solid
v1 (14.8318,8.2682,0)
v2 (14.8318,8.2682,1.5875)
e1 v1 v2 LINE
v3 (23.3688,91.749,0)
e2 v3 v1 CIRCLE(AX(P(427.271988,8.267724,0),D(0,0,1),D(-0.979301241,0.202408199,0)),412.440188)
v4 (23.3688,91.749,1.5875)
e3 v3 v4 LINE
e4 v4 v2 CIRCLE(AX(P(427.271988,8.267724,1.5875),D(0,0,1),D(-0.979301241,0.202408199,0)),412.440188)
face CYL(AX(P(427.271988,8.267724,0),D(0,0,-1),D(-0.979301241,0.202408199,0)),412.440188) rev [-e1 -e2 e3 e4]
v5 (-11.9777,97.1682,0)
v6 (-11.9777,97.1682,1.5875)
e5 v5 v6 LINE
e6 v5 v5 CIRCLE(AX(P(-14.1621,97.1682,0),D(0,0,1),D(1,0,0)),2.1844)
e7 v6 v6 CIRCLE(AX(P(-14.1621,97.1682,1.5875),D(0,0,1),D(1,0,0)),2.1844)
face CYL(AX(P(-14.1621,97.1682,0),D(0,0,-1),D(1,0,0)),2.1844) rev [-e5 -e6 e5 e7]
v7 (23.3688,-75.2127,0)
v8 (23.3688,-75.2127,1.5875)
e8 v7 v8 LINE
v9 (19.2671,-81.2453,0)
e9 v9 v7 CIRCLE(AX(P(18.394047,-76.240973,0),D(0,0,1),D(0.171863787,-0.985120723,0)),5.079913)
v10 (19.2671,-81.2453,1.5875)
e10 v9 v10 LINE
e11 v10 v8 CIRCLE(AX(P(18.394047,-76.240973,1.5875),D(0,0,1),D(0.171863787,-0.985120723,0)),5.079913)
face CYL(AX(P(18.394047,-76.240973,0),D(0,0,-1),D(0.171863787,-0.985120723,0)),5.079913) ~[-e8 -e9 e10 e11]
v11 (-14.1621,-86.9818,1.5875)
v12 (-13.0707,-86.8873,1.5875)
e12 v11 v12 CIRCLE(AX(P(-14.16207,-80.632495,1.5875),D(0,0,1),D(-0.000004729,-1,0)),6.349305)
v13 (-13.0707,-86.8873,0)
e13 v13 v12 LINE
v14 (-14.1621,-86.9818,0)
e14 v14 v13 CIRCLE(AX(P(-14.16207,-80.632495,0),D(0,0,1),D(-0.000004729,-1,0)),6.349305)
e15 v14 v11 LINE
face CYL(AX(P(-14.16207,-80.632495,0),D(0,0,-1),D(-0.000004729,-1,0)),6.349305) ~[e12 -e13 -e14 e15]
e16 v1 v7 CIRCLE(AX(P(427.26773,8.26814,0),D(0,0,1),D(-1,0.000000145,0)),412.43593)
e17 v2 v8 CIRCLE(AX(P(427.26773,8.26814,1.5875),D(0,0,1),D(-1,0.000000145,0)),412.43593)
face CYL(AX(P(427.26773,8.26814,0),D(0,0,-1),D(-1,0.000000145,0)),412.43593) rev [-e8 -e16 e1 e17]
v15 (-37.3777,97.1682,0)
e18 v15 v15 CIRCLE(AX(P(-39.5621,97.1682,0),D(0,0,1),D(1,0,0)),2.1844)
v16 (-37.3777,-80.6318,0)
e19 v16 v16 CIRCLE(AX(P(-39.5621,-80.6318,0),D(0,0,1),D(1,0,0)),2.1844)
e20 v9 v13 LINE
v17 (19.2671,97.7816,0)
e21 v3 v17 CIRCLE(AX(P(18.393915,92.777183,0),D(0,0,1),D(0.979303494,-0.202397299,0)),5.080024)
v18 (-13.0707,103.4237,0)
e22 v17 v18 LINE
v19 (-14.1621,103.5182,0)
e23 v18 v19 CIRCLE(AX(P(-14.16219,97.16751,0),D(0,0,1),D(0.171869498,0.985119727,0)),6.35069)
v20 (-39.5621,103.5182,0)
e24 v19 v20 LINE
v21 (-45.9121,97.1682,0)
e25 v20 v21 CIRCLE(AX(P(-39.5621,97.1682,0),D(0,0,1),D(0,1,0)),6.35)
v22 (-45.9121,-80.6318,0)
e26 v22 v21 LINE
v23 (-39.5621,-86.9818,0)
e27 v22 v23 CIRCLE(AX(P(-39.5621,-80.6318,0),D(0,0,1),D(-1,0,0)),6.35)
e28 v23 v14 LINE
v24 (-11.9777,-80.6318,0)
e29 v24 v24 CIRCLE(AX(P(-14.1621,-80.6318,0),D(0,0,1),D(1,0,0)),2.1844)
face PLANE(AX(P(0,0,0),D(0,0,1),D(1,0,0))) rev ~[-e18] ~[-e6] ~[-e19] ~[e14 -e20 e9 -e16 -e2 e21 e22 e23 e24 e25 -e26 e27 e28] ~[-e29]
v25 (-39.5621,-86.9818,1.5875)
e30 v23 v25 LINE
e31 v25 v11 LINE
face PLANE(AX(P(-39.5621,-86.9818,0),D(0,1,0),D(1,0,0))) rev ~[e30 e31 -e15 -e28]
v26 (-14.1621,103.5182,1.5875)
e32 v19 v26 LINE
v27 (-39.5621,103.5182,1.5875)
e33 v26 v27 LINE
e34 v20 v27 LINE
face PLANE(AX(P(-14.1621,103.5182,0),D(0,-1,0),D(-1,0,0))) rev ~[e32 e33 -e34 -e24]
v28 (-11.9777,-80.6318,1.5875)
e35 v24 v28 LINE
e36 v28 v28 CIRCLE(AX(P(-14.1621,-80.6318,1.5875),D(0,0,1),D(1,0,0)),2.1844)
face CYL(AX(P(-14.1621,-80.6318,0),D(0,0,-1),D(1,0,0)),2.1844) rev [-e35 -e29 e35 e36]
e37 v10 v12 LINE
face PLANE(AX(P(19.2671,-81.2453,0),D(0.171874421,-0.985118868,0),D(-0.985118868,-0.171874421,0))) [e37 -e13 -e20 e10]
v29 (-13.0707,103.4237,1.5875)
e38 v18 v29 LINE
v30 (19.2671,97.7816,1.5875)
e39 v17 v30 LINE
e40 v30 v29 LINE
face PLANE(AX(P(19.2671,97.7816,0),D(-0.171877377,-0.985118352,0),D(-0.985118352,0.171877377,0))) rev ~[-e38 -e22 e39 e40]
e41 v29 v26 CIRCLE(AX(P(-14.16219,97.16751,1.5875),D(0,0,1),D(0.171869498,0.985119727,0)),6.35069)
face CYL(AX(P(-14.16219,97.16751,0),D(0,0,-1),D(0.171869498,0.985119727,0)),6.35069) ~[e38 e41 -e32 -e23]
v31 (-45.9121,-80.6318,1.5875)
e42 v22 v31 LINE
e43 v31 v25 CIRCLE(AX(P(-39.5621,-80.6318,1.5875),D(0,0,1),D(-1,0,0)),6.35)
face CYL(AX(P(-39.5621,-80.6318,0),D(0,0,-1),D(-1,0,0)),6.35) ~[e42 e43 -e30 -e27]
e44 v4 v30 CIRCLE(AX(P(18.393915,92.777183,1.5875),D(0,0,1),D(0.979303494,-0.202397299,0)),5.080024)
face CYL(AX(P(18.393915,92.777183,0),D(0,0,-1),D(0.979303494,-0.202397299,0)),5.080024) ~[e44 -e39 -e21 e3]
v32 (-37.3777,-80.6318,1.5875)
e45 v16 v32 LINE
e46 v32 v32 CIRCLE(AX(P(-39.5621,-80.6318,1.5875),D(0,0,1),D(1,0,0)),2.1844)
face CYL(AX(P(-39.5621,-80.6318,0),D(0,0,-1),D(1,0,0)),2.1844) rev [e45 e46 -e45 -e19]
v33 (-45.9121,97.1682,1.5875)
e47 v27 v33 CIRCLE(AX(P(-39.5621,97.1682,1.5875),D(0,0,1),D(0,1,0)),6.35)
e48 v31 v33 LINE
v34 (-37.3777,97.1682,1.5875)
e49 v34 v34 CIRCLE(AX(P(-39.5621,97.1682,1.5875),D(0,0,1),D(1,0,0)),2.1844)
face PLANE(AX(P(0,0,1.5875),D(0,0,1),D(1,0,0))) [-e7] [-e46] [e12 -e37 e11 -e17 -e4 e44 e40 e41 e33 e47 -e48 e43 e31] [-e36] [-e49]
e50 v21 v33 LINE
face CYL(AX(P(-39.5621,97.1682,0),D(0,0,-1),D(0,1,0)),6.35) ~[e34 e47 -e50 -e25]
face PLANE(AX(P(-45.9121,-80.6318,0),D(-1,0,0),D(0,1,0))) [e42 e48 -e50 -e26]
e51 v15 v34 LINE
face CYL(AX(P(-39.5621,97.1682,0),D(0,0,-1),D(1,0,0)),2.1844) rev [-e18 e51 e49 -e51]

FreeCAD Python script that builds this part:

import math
import FreeCAD as App
import Part
import Sketcher
from FreeCAD import Vector
Q = App.Units.Quantity

doc = App.newDocument("Part")
body = doc.addObject("PartDesign::Body", "Body")

# Sketch on XY plane
sketch1 = body.newObject("Sketcher::SketchObject", "Sketch")
sketch1.AttachmentSupport = (doc.getObject("XY_Plane"), [""])
sketch1.MapMode = "FlatFace"
sketch1.addGeometry(Part.LineSegment(Vector(-13.0707, -86.8873, 0), Vector(19.2671, -81.2453, 0)), False)
sketch1.addGeometry(Part.ArcOfCircle(Part.Circle(Vector(18.394, -76.2409, 0), Vector(0, 0, 1), 5.079992), math.radians(-80.103418), math.radians(11.677563)), False)
sketch1.addGeometry(Part.ArcOfCircle(Part.Circle(Vector(427.26773, 8.26814, 0), Vector(0, 0, 1), 412.43593), math.radians(179.999992), math.radians(191.67788)), False)
sketch1.addGeometry(Part.ArcOfCircle(Part.Circle(Vector(427.271988, 8.267724, 0), Vector(0, 0, 1), 412.440188), math.radians(168.322181), math.radians(179.999934)), False)
sketch1.addGeometry(Part.ArcOfCircle(Part.Circle(Vector(18.394, 92.7772, 0), Vector(0, 0, 1), 5.079944), math.radians(-11.677563), math.radians(80.103418)), False)
sketch1.addGeometry(Part.LineSegment(Vector(19.2671, 97.7816, 0), Vector(-13.0707, 103.4237, 0)), False)
sketch1.addGeometry(Part.ArcOfCircle(Part.Circle(Vector(-14.1621, 97.1682, 0), Vector(0, 0, 1), 6.349995), math.radians(80.103196), math.radians(90)), False)
sketch1.addGeometry(Part.LineSegment(Vector(-14.1621, 103.5182, 0), Vector(-39.5621, 103.5182, 0)), False)
sketch1.addGeometry(Part.ArcOfCircle(Part.Circle(Vector(-39.5621, 97.1682, 0), Vector(0, 0, 1), 6.35), math.radians(90), math.radians(180)), False)
sketch1.addGeometry(Part.LineSegment(Vector(-45.9121, 97.1682, 0), Vector(-45.9121, -80.6318, 0)), False)
sketch1.addGeometry(Part.ArcOfCircle(Part.Circle(Vector(-39.5621, -80.6318, 0), Vector(0, 0, 1), 6.35), math.radians(180), math.radians(270)), False)
sketch1.addGeometry(Part.LineSegment(Vector(-39.5621, -86.9818, 0), Vector(-14.1621, -86.9818, 0)), False)
sketch1.addGeometry(Part.ArcOfCircle(Part.Circle(Vector(-14.1621, -80.6318, 0), Vector(0, 0, 1), 6.35), math.radians(-90), math.radians(-80.103196)), False)
sketch1.addGeometry(Part.Circle(Vector(-39.5621, -80.6318, 0), Vector(0, 0, 1), 2.1844), False)
sketch1.addGeometry(Part.Circle(Vector(-14.1621, -80.6318, 0), Vector(0, 0, 1), 2.1844), False)
sketch1.addGeometry(Part.Circle(Vector(-39.5621, 97.1682, 0), Vector(0, 0, 1), 2.1844), False)
sketch1.addGeometry(Part.Circle(Vector(-14.1621, 97.1682, 0), Vector(0, 0, 1), 2.1844), False)
sketch1.addConstraint(Sketcher.Constraint("Coincident", 0, 2, 1, 1))
sketch1.addConstraint(Sketcher.Constraint("Coincident", 1, 2, 2, 2))
sketch1.addConstraint(Sketcher.Constraint("Coincident", 2, 1, 3, 2))
sketch1.addConstraint(Sketcher.Constraint("Coincident", 3, 1, 4, 1))
sketch1.addConstraint(Sketcher.Constraint("Coincident", 4, 2, 5, 1))
sketch1.addConstraint(Sketcher.Constraint("Coincident", 5, 2, 6, 1))
sketch1.addConstraint(Sketcher.Constraint("Coincident", 6, 2, 7, 1))
sketch1.addConstraint(Sketcher.Constraint("Coincident", 7, 2, 8, 1))
sketch1.addConstraint(Sketcher.Constraint("Coincident", 8, 2, 9, 1))
sketch1.addConstraint(Sketcher.Constraint("Coincident", 9, 2, 10, 1))
sketch1.addConstraint(Sketcher.Constraint("Coincident", 10, 2, 11, 1))
sketch1.addConstraint(Sketcher.Constraint("Coincident", 11, 2, 12, 1))
sketch1.addConstraint(Sketcher.Constraint("Coincident", 12, 2, 0, 1))
sketch1.addConstraint(Sketcher.Constraint("Horizontal", 7))
sketch1.addConstraint(Sketcher.Constraint("Vertical", 9))
sketch1.addConstraint(Sketcher.Constraint("Horizontal", 11))
sketch1.addConstraint(Sketcher.Constraint("Coincident", 13, 3, 10, 3))
sketch1.addConstraint(Sketcher.Constraint("Coincident", 14, 3, 12, 3))
sketch1.addConstraint(Sketcher.Constraint("Coincident", 15, 3, 8, 3))
sketch1.addConstraint(Sketcher.Constraint("Coincident", 16, 3, 6, 3))
sketch1.addConstraint(Sketcher.Constraint("Radius", 1, Q("0.2 in")))
sketch1.addConstraint(Sketcher.Constraint("Radius", 4, Q("0.2 in")))
sketch1.addConstraint(Sketcher.Constraint("DistanceX", 7, 2, 7, 1, Q("1 in")))
sketch1.addConstraint(Sketcher.Constraint("DistanceX", 11, 1, 11, 2, Q("1 in")))
sketch1.addConstraint(Sketcher.Constraint("DistanceY", 9, 2, 9, 1, Q("7 in")))
sketch1.addConstraint(Sketcher.Constraint("Radius", 6, Q("0.25 in")))
sketch1.addConstraint(Sketcher.Constraint("Radius", 8, Q("0.25 in")))
sketch1.addConstraint(Sketcher.Constraint("Radius", 10, Q("0.25 in")))
sketch1.addConstraint(Sketcher.Constraint("Radius", 12, Q("0.25 in")))
sketch1.addConstraint(Sketcher.Constraint("Diameter", 13, Q("0.172 in")))
sketch1.addConstraint(Sketcher.Constraint("Diameter", 14, Q("0.172 in")))
sketch1.addConstraint(Sketcher.Constraint("Diameter", 15, Q("0.172 in")))
sketch1.addConstraint(Sketcher.Constraint("Diameter", 16, Q("0.172 in")))
sketch1.addConstraint(Sketcher.Constraint("DistanceX", 8, 3, 6, 3, Q("1 in")))
sketch1.addConstraint(Sketcher.Constraint("DistanceY", 10, 3, 8, 3, Q("7 in")))
sketch1.addConstraint(Sketcher.Constraint("DistanceX", 10, 3, 12, 3, Q("1 in")))
sketch1.addConstraint(Sketcher.Constraint("DistanceX", 8, 3, 6, 2, Q("1 in")))
sketch1.addConstraint(Sketcher.Constraint("DistanceX", 10, 2, 12, 3, Q("1 in")))
sketch1.addConstraint(Sketcher.Constraint("Radius", 3, Q("16.2378 in")))
sketch1.addConstraint(Sketcher.Constraint("DistanceY", 2, 3, 6, 3, Q("3.5 in")))
sketch1.addConstraint(Sketcher.Constraint("DistanceY", 12, 3, 2, 1, Q("3.5 in")))
sketch1.addConstraint(Sketcher.Constraint("Radius", 2, Q("412.436 mm")))
sketch1.addConstraint(Sketcher.Constraint("DistanceY", 8, 2, 7, 2, Q("0.25 in")))
sketch1.addConstraint(Sketcher.Constraint("DistanceY", 1, 3, -1, 1, Q("3.0016 in")))
sketch1.addConstraint(Sketcher.Constraint("DistanceY", -1, 1, 3, 3, Q("0.3255 in")))
sketch1.addConstraint(Sketcher.Constraint("DistanceX", 5, 2, -1, 1, Q("0.5146 in")))
sketch1.addConstraint(Sketcher.Constraint("DistanceY", -1, 1, 5, 2, Q("4.0718 in")))
sketch1.addConstraint(Sketcher.Constraint("DistanceX", 12, 2, -1, 1, Q("0.5146 in")))
sketch1.addConstraint(Sketcher.Constraint("DistanceX", 1, 3, 2, 3, Q("16.0974 in")))
sketch1.addConstraint(Sketcher.Constraint("DistanceX", 4, 3, 2, 3, Q("16.0974 in")))
sketch1.addConstraint(Sketcher.Constraint("DistanceX", 6, 3, 3, 3, Q("17.3793 in")))
sketch1.addConstraint(Sketcher.Constraint("DistanceX", 12, 3, 0, 2, Q("1.3161 in")))
sketch1.addConstraint(Sketcher.Constraint("DistanceY", 0, 2, 1, 2, Q("0.2375 in")))
sketch1.addConstraint(Sketcher.Constraint("DistanceX", 6, 3, 3, 1, Q("1.4776 in")))
sketch1.addConstraint(Sketcher.Constraint("DistanceX", 6, 3, 4, 2, Q("1.3161 in")))
pad1 = body.newObject("PartDesign::Pad", "Pad")
pad1.Profile = sketch1
pad1.Length = Q("0.0625 in")

doc.recompute()
